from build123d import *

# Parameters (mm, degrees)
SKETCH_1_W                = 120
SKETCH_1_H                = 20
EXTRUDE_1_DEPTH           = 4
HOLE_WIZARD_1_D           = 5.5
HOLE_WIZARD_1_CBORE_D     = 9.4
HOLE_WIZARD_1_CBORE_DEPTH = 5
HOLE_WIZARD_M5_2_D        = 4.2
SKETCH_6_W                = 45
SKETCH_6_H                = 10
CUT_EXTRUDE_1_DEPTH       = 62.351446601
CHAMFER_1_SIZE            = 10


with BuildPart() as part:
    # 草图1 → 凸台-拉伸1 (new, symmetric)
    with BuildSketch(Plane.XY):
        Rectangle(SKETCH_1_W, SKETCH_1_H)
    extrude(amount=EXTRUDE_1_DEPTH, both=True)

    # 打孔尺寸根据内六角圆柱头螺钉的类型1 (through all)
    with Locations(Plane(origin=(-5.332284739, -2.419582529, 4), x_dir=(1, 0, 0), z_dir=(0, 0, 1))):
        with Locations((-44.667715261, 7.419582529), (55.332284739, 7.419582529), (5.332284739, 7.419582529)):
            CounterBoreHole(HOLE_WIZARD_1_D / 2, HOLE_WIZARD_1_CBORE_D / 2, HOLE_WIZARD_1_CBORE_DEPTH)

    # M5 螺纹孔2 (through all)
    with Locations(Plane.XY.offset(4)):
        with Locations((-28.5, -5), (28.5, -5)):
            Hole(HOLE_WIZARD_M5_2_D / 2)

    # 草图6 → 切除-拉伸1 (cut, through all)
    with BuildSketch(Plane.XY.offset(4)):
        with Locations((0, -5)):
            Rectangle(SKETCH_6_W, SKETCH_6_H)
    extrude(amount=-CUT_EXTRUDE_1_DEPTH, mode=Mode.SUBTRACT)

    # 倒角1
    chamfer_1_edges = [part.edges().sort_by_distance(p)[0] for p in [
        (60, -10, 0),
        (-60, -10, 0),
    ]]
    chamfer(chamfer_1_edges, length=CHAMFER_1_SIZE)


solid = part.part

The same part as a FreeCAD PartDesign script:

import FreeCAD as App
import Part
import Sketcher
Q = App.Units.Quantity


def edges_at(feature, points):
    """Names of the edges that pass closest to the given points."""
    edges = feature.Shape.Edges
    near = lambda p: min(range(len(edges)), key=lambda i: edges[i].distToShape(Part.Vertex(*p))[0])
    return sorted({f"Edge{near(p) + 1}" for p in points})

doc = App.newDocument("Part")
body = doc.addObject("PartDesign::Body", "Body")

# Sketch on XY plane
sketch1 = body.newObject("Sketcher::SketchObject", "Sketch")
sketch1.AttachmentSupport = (doc.getObject("XY_Plane"), [""])
sketch1.MapMode = "FlatFace"
sketch1.addGeometry([
    Part.LineSegment(App.Vector(-60, 10, 0), App.Vector(-60, -10, 0)),
    Part.LineSegment(App.Vector(-60, -10, 0), App.Vector(60, -10, 0)),
    Part.LineSegment(App.Vector(60, -10, 0), App.Vector(60, 10, 0)),
    Part.LineSegment(App.Vector(60, 10, 0), App.Vector(-60, 10, 0)),
], False)
sketch1.addConstraint([
    Sketcher.Constraint("Coincident", 0, 2, 1, 1),
    Sketcher.Constraint("Coincident", 1, 2, 2, 1),
    Sketcher.Constraint("Coincident", 2, 2, 3, 1),
    Sketcher.Constraint("Coincident", 3, 2, 0, 1),
    Sketcher.Constraint("Vertical", 0),
    Sketcher.Constraint("Horizontal", 1),
    Sketcher.Constraint("Vertical", 2),
    Sketcher.Constraint("Horizontal", 3),
    Sketcher.Constraint("Symmetric", 0, 2, 2, 2, -1, 1),
    Sketcher.Constraint("DistanceX", 1, 1, 1, 2, Q("120 mm")),
    Sketcher.Constraint("DistanceY", 0, 2, 0, 1, Q("20 mm")),
])
pad1 = body.newObject("PartDesign::Pad", "Pad")
pad1.Profile = sketch1
pad1.Length = 8
pad1.Midplane = True

# Sketch on XY plane
sketch2 = body.newObject("Sketcher::SketchObject", "Sketch001")
sketch2.AttachmentSupport = (doc.getObject("XY_Plane"), [""])
sketch2.MapMode = "FlatFace"
sketch2.AttachmentOffset = App.Placement(App.Vector(0, 0, 4), App.Rotation())
sketch2.addGeometry([
    Part.Circle(App.Vector(-50, 5, 0), App.Vector(0, 0, 1), 2.8),
    Part.Circle(App.Vector(50, 5, 0), App.Vector(0, 0, 1), 2.8),
    Part.Circle(App.Vector(0, 5, 0), App.Vector(0, 0, 1), 2.8),
], False)
sketch2.addConstraint([
    Sketcher.Constraint("Equal", 0, 1),
    Sketcher.Constraint("Equal", 1, 2),
    Sketcher.Constraint("Symmetric", 0, 3, 1, 3, -2),
    Sketcher.Constraint("PointOnObject", 2, 3, -2),
    Sketcher.Constraint("Horizontal", 1, 3, 2, 3),
    Sketcher.Constraint("Diameter", 0, Q("5.5 mm")),
    Sketcher.Constraint("DistanceX", 0, 3, -1, 1, Q("50 mm")),
    Sketcher.Constraint("DistanceY", -1, 1, 0, 3, Q("5 mm")),
])
doc.recompute()
hole = body.newObject("PartDesign::Hole", "Hole")
hole.Profile = sketch2
hole.ThreadType = "None"
hole.Diameter = 5.5
hole.DepthType = "ThroughAll"
hole.HoleCutType = "Counterbore"
hole.HoleCutDiameter = 9.4
hole.HoleCutDepth = 5

# Sketch on XY plane
sketch3 = body.newObject("Sketcher::SketchObject", "Sketch002")
sketch3.AttachmentSupport = (doc.getObject("XY_Plane"), [""])
sketch3.MapMode = "FlatFace"
sketch3.AttachmentOffset = App.Placement(App.Vector(0, 0, 4), App.Rotation())
sketch3.addGeometry([
    Part.Circle(App.Vector(-28.5, -5, 0), App.Vector(0, 0, 1), 2.1),
    Part.Circle(App.Vector(28.5, -5, 0), App.Vector(0, 0, 1), 2.1),
], False)
sketch3.addConstraint([
    Sketcher.Constraint("Equal", 0, 1),
    Sketcher.Constraint("Symmetric", 0, 3, 1, 3, -2),
    Sketcher.Constraint("Diameter", 0, Q("4.2 mm")),
    Sketcher.Constraint("DistanceY", 0, 3, -1, 1, Q("5 mm")),
    Sketcher.Constraint("DistanceX", 0, 3, 1, 3, Q("57 mm")),
])
doc.recompute()
hole2 = body.newObject("PartDesign::Hole", "Hole001")
hole2.Profile = sketch3
hole2.ThreadType = "None"
hole2.Diameter = 4.2
hole2.DepthType = "ThroughAll"

# Sketch on XY plane
sketch4 = body.newObject("Sketcher::SketchObject", "Sketch003")
sketch4.AttachmentSupport = (doc.getObject("XY_Plane"), [""])
sketch4.MapMode = "FlatFace"
sketch4.AttachmentOffset = App.Placement(App.Vector(0, 0, 4), App.Rotation())
sketch4.addGeometry([
    Part.LineSegment(App.Vector(-22, 0, 0), App.Vector(-22, -10, 0)),
    Part.LineSegment(App.Vector(-22, -10, 0), App.Vector(22, -10, 0)),
    Part.LineSegment(App.Vector(22, -10, 0), App.Vector(22, 0, 0)),
    Part.LineSegment(App.Vector(22, 0, 0), App.Vector(-22, 0, 0)),
], False)
sketch4.addConstraint([
    Sketcher.Constraint("Coincident", 0, 2, 1, 1),
    Sketcher.Constraint("Coincident", 1, 2, 2, 1),
    Sketcher.Constraint("Coincident", 2, 2, 3, 1),
    Sketcher.Constraint("Coincident", 3, 2, 0, 1),
    Sketcher.Constraint("Vertical", 0),
    Sketcher.Constraint("Horizontal", 1),
    Sketcher.Constraint("Vertical", 2),
    Sketcher.Constraint("Horizontal", 3),
    Sketcher.Constraint("Symmetric", 2, 2, 3, 2, -1, 1),
    Sketcher.Constraint("DistanceX", 1, 1, 1, 2, Q("45 mm")),
    Sketcher.Constraint("DistanceY", 0, 2, 0, 1, Q("10 mm")),
])
pocket1 = body.newObject("PartDesign::Pocket", "Pocket")
pocket1.Profile = sketch4
pocket1.Type = "ThroughAll"
doc.recompute()

chamfer = body.newObject("PartDesign::Chamfer", "Chamfer")
chamfer.Base = (pocket1, edges_at(pocket1, [(60, -10, 0), (-60, -10, 0)]))
chamfer.Size = 10

doc.recompute()
